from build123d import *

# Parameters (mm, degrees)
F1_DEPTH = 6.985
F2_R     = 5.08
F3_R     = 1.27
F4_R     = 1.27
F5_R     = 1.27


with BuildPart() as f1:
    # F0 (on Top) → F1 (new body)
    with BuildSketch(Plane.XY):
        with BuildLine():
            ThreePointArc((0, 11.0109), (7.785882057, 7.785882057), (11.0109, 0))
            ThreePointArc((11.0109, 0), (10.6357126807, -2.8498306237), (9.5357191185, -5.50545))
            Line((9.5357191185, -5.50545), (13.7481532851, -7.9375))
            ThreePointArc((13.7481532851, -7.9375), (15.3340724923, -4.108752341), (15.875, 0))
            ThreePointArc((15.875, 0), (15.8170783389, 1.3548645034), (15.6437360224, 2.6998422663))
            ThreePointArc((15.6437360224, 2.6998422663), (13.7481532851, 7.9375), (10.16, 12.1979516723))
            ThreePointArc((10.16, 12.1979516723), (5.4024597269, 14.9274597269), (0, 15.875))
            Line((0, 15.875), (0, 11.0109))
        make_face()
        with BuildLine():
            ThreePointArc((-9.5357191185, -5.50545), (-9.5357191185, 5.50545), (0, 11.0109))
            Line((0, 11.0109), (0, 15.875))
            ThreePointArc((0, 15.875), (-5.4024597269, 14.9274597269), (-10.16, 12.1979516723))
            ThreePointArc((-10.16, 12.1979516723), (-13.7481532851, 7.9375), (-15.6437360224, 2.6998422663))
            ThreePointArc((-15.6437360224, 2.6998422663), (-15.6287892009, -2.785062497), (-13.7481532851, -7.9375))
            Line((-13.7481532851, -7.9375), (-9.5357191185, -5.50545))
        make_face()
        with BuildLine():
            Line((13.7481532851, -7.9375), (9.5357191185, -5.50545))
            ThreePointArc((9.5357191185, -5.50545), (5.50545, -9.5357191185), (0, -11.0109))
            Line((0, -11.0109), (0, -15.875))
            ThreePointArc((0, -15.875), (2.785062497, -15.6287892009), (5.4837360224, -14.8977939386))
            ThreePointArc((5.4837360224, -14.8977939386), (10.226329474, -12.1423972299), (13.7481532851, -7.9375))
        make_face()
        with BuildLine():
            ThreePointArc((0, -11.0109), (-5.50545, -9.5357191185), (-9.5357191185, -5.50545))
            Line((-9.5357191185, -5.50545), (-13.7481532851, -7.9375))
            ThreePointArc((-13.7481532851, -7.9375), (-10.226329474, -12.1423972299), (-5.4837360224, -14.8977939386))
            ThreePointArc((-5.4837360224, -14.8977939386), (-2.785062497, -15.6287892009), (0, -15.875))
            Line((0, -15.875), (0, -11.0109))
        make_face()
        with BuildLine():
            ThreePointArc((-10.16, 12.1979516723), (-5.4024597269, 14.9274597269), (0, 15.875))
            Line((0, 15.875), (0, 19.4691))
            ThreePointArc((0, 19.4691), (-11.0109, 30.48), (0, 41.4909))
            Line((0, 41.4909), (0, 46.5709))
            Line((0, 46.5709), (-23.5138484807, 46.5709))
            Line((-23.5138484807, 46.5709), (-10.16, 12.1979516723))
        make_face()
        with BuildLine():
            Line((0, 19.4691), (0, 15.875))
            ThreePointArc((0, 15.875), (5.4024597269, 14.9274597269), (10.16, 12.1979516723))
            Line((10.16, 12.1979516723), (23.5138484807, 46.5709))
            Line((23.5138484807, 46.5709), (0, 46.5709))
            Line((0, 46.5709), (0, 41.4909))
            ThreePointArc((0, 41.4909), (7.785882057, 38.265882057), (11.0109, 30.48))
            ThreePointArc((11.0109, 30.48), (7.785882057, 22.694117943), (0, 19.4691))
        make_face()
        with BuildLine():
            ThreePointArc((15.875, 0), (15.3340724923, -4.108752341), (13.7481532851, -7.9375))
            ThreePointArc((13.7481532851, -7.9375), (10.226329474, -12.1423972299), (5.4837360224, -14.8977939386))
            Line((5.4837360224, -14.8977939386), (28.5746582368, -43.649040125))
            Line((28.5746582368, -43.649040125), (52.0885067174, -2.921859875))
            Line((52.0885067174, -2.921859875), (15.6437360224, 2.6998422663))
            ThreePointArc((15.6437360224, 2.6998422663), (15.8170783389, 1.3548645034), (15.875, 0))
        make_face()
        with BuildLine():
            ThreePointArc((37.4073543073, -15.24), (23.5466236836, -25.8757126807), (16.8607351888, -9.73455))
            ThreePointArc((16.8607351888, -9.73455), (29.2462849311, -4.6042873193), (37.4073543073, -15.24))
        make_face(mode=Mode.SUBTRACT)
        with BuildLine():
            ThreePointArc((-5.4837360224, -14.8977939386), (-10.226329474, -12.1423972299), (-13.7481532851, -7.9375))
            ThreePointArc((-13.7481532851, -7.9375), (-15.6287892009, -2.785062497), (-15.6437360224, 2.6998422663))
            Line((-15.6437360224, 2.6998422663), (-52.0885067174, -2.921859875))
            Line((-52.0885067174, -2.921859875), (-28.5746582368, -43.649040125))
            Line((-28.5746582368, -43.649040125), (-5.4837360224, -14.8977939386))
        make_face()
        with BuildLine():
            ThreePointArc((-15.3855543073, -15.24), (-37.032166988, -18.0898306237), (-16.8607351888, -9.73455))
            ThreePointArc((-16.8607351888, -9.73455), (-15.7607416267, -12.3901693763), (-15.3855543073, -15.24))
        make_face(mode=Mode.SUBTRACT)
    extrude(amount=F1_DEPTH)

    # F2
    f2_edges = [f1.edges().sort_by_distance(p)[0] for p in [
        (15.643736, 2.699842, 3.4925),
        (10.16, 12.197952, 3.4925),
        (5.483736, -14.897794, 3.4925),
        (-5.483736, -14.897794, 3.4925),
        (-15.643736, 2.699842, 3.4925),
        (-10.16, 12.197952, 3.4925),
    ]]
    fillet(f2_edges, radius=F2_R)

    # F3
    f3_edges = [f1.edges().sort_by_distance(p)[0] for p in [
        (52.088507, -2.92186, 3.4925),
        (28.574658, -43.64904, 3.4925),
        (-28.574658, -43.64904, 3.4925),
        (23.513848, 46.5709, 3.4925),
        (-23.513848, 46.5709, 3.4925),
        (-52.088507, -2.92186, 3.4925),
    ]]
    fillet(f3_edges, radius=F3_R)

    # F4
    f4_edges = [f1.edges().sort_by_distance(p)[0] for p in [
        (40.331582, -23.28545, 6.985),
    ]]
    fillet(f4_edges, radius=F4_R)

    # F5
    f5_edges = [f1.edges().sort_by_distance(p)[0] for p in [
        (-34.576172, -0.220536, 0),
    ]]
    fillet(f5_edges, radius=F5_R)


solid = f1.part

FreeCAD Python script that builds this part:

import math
import FreeCAD as App
import Part
import Sketcher
Q = App.Units.Quantity


def edges_at(feature, points):
    """Names of the edges that pass closest to the given points."""
    edges = feature.Shape.Edges
    near = lambda p: min(range(len(edges)), key=lambda i: edges[i].distToShape(Part.Vertex(*p))[0])
    return sorted({f"Edge{near(p) + 1}" for p in points})

doc = App.newDocument("Part")
params = doc.addObject("Spreadsheet::Sheet", "Params")
for row, (alias, value) in enumerate([
    ("sketch1_radius", "0.625 in"),
    ("pad1_length", "0.275 in"),
    ("fillet_radius", "0.2 in"),
    ("fillet2_radius", "0.05 in"),
    ("fillet3_radius", "0.05 in"),
    ("fillet4_radius", "0.05 in"),
], start=1):
    params.set(f"A{row}", alias)
    params.set(f"B{row}", "=" + value)
    params.setAlias(f"B{row}", alias)

body = doc.addObject("PartDesign::Body", "Body")

# Sketch on XY plane
sketch1 = doc.addObject("Sketcher::SketchObject", "Sketch")
body.addObject(sketch1)
sketch1.AttachmentSupport = (doc.XY_Plane, [""])
sketch1.MapMode = "FlatFace"
sketch1.addGeometry([
    Part.ArcOfCircle(Part.Circle(App.Vector(0, 0, 0), App.Vector(0, 0, 1), 16), math.radians(-90), math.radians(-70)),  # 0
    Part.LineSegment(App.Vector(5, -15, 0), App.Vector(29, -44, 0)),  # 1
    Part.LineSegment(App.Vector(29, -44, 0), App.Vector(52, -3, 0)),  # 2
    Part.LineSegment(App.Vector(52, -3, 0), App.Vector(16, 3, 0)),  # 3
    Part.ArcOfCircle(Part.Circle(App.Vector(0, 0, 0), App.Vector(0, 0, 1), 16), math.radians(10), math.radians(50)),  # 4
    Part.LineSegment(App.Vector(10, 12, 0), App.Vector(24, 47, 0)),  # 5
    Part.LineSegment(App.Vector(24, 47, 0), App.Vector(-24, 47, 0)),  # 6
    Part.LineSegment(App.Vector(-24, 47, 0), App.Vector(-10, 12, 0)),  # 7
    Part.ArcOfCircle(Part.Circle(App.Vector(0, 0, 0), App.Vector(0, 0, 1), 16), math.radians(130), math.radians(170)),  # 8
    Part.LineSegment(App.Vector(-16, 3, 0), App.Vector(-52, -3, 0)),  # 9
    Part.LineSegment(App.Vector(-52, -3, 0), App.Vector(-29, -44, 0)),  # 10
    Part.LineSegment(App.Vector(-29, -44, 0), App.Vector(-5, -15, 0)),  # 11
    Part.ArcOfCircle(Part.Circle(App.Vector(0, 0, 0), App.Vector(0, 0, 1), 16), math.radians(-110), math.radians(-90)),  # 12
    Part.ArcOfCircle(Part.Circle(App.Vector(-26, -15, 0), App.Vector(0, 0, 1), 11), math.radians(0), math.radians(30)),  # 13
    Part.ArcOfCircle(Part.Circle(App.Vector(-26, -15, 0), App.Vector(0, 0, 1), 11), math.radians(30), math.radians(360)),  # 14
    Part.ArcOfCircle(Part.Circle(App.Vector(26, -15, 0), App.Vector(0, 0, 1), 11), math.radians(0), math.radians(150)),  # 15
    Part.ArcOfCircle(Part.Circle(App.Vector(26, -15, 0), App.Vector(0, 0, 1), 11), math.radians(150), math.radians(360)),  # 16
    Part.ArcOfCircle(Part.Circle(App.Vector(0, 0, 0), App.Vector(0, 0, 1), 11), math.radians(0), math.radians(90)),  # 17
    Part.ArcOfCircle(Part.Circle(App.Vector(0, 0, 0), App.Vector(0, 0, 1), 11), math.radians(-30), math.radians(0)),  # 18
    Part.ArcOfCircle(Part.Circle(App.Vector(0, 0, 0), App.Vector(0, 0, 1), 11), math.radians(-90), math.radians(-30)),  # 19
    Part.ArcOfCircle(Part.Circle(App.Vector(0, 0, 0), App.Vector(0, 0, 1), 11), math.radians(-150), math.radians(-90)),  # 20
    Part.ArcOfCircle(Part.Circle(App.Vector(0, 0, 0), App.Vector(0, 0, 1), 11), math.radians(90), math.radians(210)),  # 21
    Part.ArcOfCircle(Part.Circle(App.Vector(0, 30, 0), App.Vector(0, 0, 1), 11), math.radians(90), math.radians(270)),  # 22
    Part.ArcOfCircle(Part.Circle(App.Vector(0, 30, 0), App.Vector(0, 0, 1), 11), math.radians(0), math.radians(90)),  # 23
    Part.ArcOfCircle(Part.Circle(App.Vector(0, 30, 0), App.Vector(0, 0, 1), 11), math.radians(-90), math.radians(0)),  # 24
], False)
sketch1.addConstraint([
    Sketcher.Constraint("Coincident", 0, 2, 1, 1),
    Sketcher.Constraint("Coincident", 1, 2, 2, 1),
    Sketcher.Constraint("Coincident", 2, 2, 3, 1),
    Sketcher.Constraint("Coincident", 3, 2, 4, 1),
    Sketcher.Constraint("Coincident", 4, 2, 5, 1),
    Sketcher.Constraint("Coincident", 5, 2, 6, 1),
    Sketcher.Constraint("Coincident", 6, 2, 7, 1),
    Sketcher.Constraint("Coincident", 7, 2, 8, 1),
    Sketcher.Constraint("Coincident", 8, 2, 9, 1),
    Sketcher.Constraint("Coincident", 9, 2, 10, 1),
    Sketcher.Constraint("Coincident", 10, 2, 11, 1),
    Sketcher.Constraint("Coincident", 11, 2, 12, 1),
    Sketcher.Constraint("Tangent", 12, 2, 0, 1),
    Sketcher.Constraint("Tangent", 13, 1, 14, 2),
    Sketcher.Constraint("Coincident", 14, 1, 13, 2),
    Sketcher.Constraint("Tangent", 15, 1, 16, 2),
    Sketcher.Constraint("Coincident", 16, 1, 15, 2),
    Sketcher.Constraint("Tangent", 17, 1, 18, 2),
    Sketcher.Constraint("Tangent", 18, 1, 19, 2),
    Sketcher.Constraint("Tangent", 19, 1, 20, 2),
    Sketcher.Constraint("Tangent", 20, 1, 21, 2),
    Sketcher.Constraint("Tangent", 21, 1, 17, 2),
    Sketcher.Constraint("Tangent", 22, 1, 23, 2),
    Sketcher.Constraint("Tangent", 23, 1, 24, 2),
    Sketcher.Constraint("Tangent", 24, 1, 22, 2),
    Sketcher.Constraint("Horizontal", 6),
    Sketcher.Constraint("Coincident", 0, 3, -1, 1),
    Sketcher.Constraint("Coincident", 4, 3, -1, 1),
    Sketcher.Constraint("Coincident", 8, 3, -1, 1),
    Sketcher.Constraint("Coincident", 17, 3, -1, 1),
    Sketcher.Constraint("Coincident", 19, 3, -1, 1),
    Sketcher.Constraint("Equal", 0, 4),
    Sketcher.Constraint("Equal", 4, 8),
    Sketcher.Constraint("Equal", 8, 12),
    Sketcher.Constraint("Equal", 14, 15),
    Sketcher.Constraint("Equal", 16, 17),
    Sketcher.Constraint("Equal", 21, 22),
    Sketcher.Constraint("Symmetric", 13, 3, 15, 3, -2),
    Sketcher.Constraint("Symmetric", 2, 2, 9, 2, -2),
    Sketcher.Constraint("Symmetric", 1, 2, 10, 2, -2),
    Sketcher.Constraint("PointOnObject", 22, 3, -2),
    Sketcher.Constraint("PointOnObject", 12, 2, -2),
    Sketcher.Constraint("PointOnObject", 17, 1, -1),
    Sketcher.Constraint("PointOnObject", 19, 1, -2),
    Sketcher.Constraint("PointOnObject", 21, 1, -2),
    Sketcher.Constraint("PointOnObject", 22, 1, -2),
    Sketcher.Constraint("PointOnObject", 24, 1, -2),
    Sketcher.Constraint("Horizontal", 4, 2, 7, 2),
    Sketcher.Constraint("Horizontal", 3, 2, 8, 2),
    Sketcher.Constraint("Horizontal", 0, 2, 11, 2),
    Sketcher.Constraint("Horizontal", 16, 3, 13, 1),
    Sketcher.Constraint("Horizontal", 13, 1, 15, 1),
    Sketcher.Constraint("Horizontal", 14, 1, 16, 1),
    Sketcher.Constraint("Horizontal", 18, 1, 20, 1),
    Sketcher.Constraint("Horizontal", 24, 3, 23, 1),
    Sketcher.Constraint("Equal", 1, 3),
    Sketcher.Constraint("Equal", 3, 5),
    Sketcher.Constraint("Equal", 5, 7),
    Sketcher.Constraint("Angle", 2, Q("60 deg")),
    Sketcher.Constraint("Radius", 0, Q("0.625 in")),
    Sketcher.Constraint("DistanceY", 13, 3, -1, 1, Q("0.6 in")),
    Sketcher.Constraint("DistanceY", -1, 1, 22, 3, Q("1.2 in")),
    Sketcher.Constraint("DistanceX", -1, 1, 4, 2, Q("0.4 in")),
    Sketcher.Constraint("Radius", 13, Q("0.4335 in")),
    Sketcher.Constraint("DistanceY", 22, 1, 5, 2, Q("0.2 in")),
    Sketcher.Constraint("DistanceY", 16, 1, 18, 1, Q("0.1665 in")),
    Sketcher.Constraint("DistanceX", 14, 1, 8, 2, 1.216999),
    Sketcher.Constraint("DistanceX", 14, 1, 11, 2, 11.376999),
    Sketcher.Constraint("DistanceX", 6, 2, 6, 1, 47.027697),
    Sketcher.Constraint("DistanceX", -1, 1, 1, 2, 28.574658),
    Sketcher.Constraint("DistanceY", 1, 2, -1, 1, 43.64904),
    Sketcher.Constraint("DistanceY", 14, 1, -1, 1, 9.73455),
])
sketch1.setExpression("Constraints[59]", "Params.sketch1_radius")
pad1 = doc.addObject("PartDesign::Pad", "Pad")
body.addObject(pad1)
pad1.Profile = sketch1
pad1.setExpression("Length", "Params.pad1_length")
doc.recompute()

fillet = doc.addObject("PartDesign::Fillet", "Fillet")
body.addObject(fillet)
fillet.Base = (pad1, edges_at(pad1, [
    (15.644, 2.7, 3.493),
    (10.16, 12.198, 3.493),
    (5.484, -14.898, 3.493),
    (-5.484, -14.898, 3.493),
    (-15.644, 2.7, 3.493),
    (-10.16, 12.198, 3.493),
]))
fillet.setExpression("Radius", "Params.fillet_radius")
doc.recompute()

fillet2 = doc.addObject("PartDesign::Fillet", "Fillet001")
body.addObject(fillet2)
fillet2.Base = (fillet, edges_at(fillet, [
    (52.089, -2.922, 3.493),
    (28.575, -43.649, 3.493),
    (-28.575, -43.649, 3.493),
    (23.514, 46.571, 3.493),
    (-23.514, 46.571, 3.493),
    (-52.089, -2.922, 3.493),
]))
fillet2.setExpression("Radius", "Params.fillet2_radius")
doc.recompute()

fillet3 = doc.addObject("PartDesign::Fillet", "Fillet002")
body.addObject(fillet3)
fillet3.Base = (fillet2, edges_at(fillet2, [(40.332, -23.285, 6.985)]))
fillet3.setExpression("Radius", "Params.fillet3_radius")
doc.recompute()

fillet4 = doc.addObject("PartDesign::Fillet", "Fillet003")
body.addObject(fillet4)
fillet4.Base = (fillet3, edges_at(fillet3, [(-34.576, -0.221, 0)]))
fillet4.setExpression("Radius", "Params.fillet4_radius")

doc.recompute()
